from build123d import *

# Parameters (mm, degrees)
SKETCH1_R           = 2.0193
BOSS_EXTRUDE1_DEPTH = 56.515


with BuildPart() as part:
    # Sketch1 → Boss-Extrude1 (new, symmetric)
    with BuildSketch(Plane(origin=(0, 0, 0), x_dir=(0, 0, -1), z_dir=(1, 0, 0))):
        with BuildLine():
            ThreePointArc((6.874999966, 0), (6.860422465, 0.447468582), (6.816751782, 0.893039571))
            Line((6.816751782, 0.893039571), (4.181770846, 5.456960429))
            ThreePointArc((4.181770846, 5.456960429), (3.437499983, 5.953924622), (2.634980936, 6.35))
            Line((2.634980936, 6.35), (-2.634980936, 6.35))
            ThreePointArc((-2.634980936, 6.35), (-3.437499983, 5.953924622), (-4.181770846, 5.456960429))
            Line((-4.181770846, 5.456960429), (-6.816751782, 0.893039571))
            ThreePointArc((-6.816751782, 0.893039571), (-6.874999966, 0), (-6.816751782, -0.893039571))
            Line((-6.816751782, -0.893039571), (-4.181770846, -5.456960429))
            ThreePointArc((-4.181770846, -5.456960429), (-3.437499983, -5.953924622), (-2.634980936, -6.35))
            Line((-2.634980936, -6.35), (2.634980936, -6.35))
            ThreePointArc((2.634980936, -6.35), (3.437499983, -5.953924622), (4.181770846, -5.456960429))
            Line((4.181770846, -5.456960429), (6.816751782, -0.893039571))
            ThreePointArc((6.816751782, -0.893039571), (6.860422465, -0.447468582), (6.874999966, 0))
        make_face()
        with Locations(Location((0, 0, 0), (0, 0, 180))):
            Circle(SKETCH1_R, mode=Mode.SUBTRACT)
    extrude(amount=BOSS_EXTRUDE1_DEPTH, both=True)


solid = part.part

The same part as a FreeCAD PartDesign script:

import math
import FreeCAD as App
import Part
import Sketcher
from FreeCAD import Vector
Q = App.Units.Quantity

doc = App.newDocument("Part")
body = doc.addObject("PartDesign::Body", "Body")

# Sketch on YZ plane
sketch1 = body.newObject("Sketcher::SketchObject", "Sketch")
sketch1.AttachmentSupport = (doc.getObject("YZ_Plane"), [""])
sketch1.MapMode = "FlatFace"
sketch1.addGeometry(Part.ArcOfCircle(Part.Circle(Vector(0, 0, 0), Vector(0, 0, 1), 6.9), math.radians(-90), math.radians(-82.54)), False)
sketch1.addGeometry(Part.LineSegment(Vector(0.9, -6.8, 0), Vector(5.5, -4.2, 0)), False)
sketch1.addGeometry(Part.ArcOfCircle(Part.Circle(Vector(0, 0, 0), Vector(0, 0, 1), 6.9), math.radians(-37.46), math.radians(-22.54)), False)
sketch1.addGeometry(Part.LineSegment(Vector(6.3, -2.6, 0), Vector(6.3, 2.6, 0)), False)
sketch1.addGeometry(Part.ArcOfCircle(Part.Circle(Vector(0, 0, 0), Vector(0, 0, 1), 6.9), math.radians(22.54), math.radians(37.46)), False)
sketch1.addGeometry(Part.LineSegment(Vector(5.5, 4.2, 0), Vector(0.9, 6.8, 0)), False)
sketch1.addGeometry(Part.ArcOfCircle(Part.Circle(Vector(0, 0, 0), Vector(0, 0, 1), 6.9), math.radians(82.54), math.radians(97.46)), False)
sketch1.addGeometry(Part.LineSegment(Vector(-0.9, 6.8, 0), Vector(-5.5, 4.2, 0)), False)
sketch1.addGeometry(Part.ArcOfCircle(Part.Circle(Vector(0, 0, 0), Vector(0, 0, 1), 6.9), math.radians(142.54), math.radians(157.46)), False)
sketch1.addGeometry(Part.LineSegment(Vector(-6.3, 2.6, 0), Vector(-6.3, -2.6, 0)), False)
sketch1.addGeometry(Part.ArcOfCircle(Part.Circle(Vector(0, 0, 0), Vector(0, 0, 1), 6.9), math.radians(-157.46), math.radians(-142.54)), False)
sketch1.addGeometry(Part.LineSegment(Vector(-5.5, -4.2, 0), Vector(-0.9, -6.8, 0)), False)
sketch1.addGeometry(Part.ArcOfCircle(Part.Circle(Vector(0, 0, 0), Vector(0, 0, 1), 6.9), math.radians(-97.46), math.radians(-90)), False)
sketch1.addGeometry(Part.Circle(Vector(0, 0, 0), Vector(0, 0, 1), 2), False)
sketch1.addConstraint(Sketcher.Constraint("Coincident", 0, 2, 1, 1))
sketch1.addConstraint(Sketcher.Constraint("Coincident", 1, 2, 2, 1))
sketch1.addConstraint(Sketcher.Constraint("Coincident", 2, 2, 3, 1))
sketch1.addConstraint(Sketcher.Constraint("Coincident", 3, 2, 4, 1))
sketch1.addConstraint(Sketcher.Constraint("Coincident", 4, 2, 5, 1))
sketch1.addConstraint(Sketcher.Constraint("Coincident", 5, 2, 6, 1))
sketch1.addConstraint(Sketcher.Constraint("Coincident", 6, 2, 7, 1))
sketch1.addConstraint(Sketcher.Constraint("Coincident", 7, 2, 8, 1))
sketch1.addConstraint(Sketcher.Constraint("Coincident", 8, 2, 9, 1))
sketch1.addConstraint(Sketcher.Constraint("Coincident", 9, 2, 10, 1))
sketch1.addConstraint(Sketcher.Constraint("Coincident", 10, 2, 11, 1))
sketch1.addConstraint(Sketcher.Constraint("Coincident", 11, 2, 12, 1))
sketch1.addConstraint(Sketcher.Constraint("Tangent", 12, 2, 0, 1))
sketch1.addConstraint(Sketcher.Constraint("Vertical", 3))
sketch1.addConstraint(Sketcher.Constraint("Vertical", 9))
sketch1.addConstraint(Sketcher.Constraint("Coincident", 0, 3, -1, 1))
sketch1.addConstraint(Sketcher.Constraint("Coincident", 2, 3, -1, 1))
sketch1.addConstraint(Sketcher.Constraint("Coincident", 4, 3, -1, 1))
sketch1.addConstraint(Sketcher.Constraint("Coincident", 6, 3, -1, 1))
sketch1.addConstraint(Sketcher.Constraint("Coincident", 8, 3, -1, 1))
sketch1.addConstraint(Sketcher.Constraint("Coincident", 10, 3, -1, 1))
sketch1.addConstraint(Sketcher.Constraint("Coincident", 13, 3, -1, 1))
sketch1.addConstraint(Sketcher.Constraint("Equal", 0, 2))
sketch1.addConstraint(Sketcher.Constraint("Equal", 2, 4))
sketch1.addConstraint(Sketcher.Constraint("Equal", 4, 6))
sketch1.addConstraint(Sketcher.Constraint("Equal", 6, 8))
sketch1.addConstraint(Sketcher.Constraint("Equal", 8, 10))
sketch1.addConstraint(Sketcher.Constraint("Equal", 10, 12))
sketch1.addConstraint(Sketcher.Constraint("PointOnObject", 12, 2, -2))
sketch1.addConstraint(Sketcher.Constraint("Parallel", 1, 7))
sketch1.addConstraint(Sketcher.Constraint("Parallel", 5, 11))
sketch1.addConstraint(Sketcher.Constraint("Horizontal", 5, 2, 6, 2))
sketch1.addConstraint(Sketcher.Constraint("Horizontal", 4, 2, 7, 2))
sketch1.addConstraint(Sketcher.Constraint("Horizontal", 3, 2, 8, 2))
sketch1.addConstraint(Sketcher.Constraint("Horizontal", 1, 2, 10, 2))
sketch1.addConstraint(Sketcher.Constraint("Vertical", 1, 2, 4, 2))
sketch1.addConstraint(Sketcher.Constraint("Diameter", 13, Q("0.159 in")))
sketch1.addConstraint(Sketcher.Constraint("Angle", 1, Q("30 deg")))
sketch1.addConstraint(Sketcher.Constraint("DistanceX", -1, 1, 2, 2, Q("0.25 in")))
sketch1.addConstraint(Sketcher.Constraint("Radius", 0, 6.875))
sketch1.addConstraint(Sketcher.Constraint("Distance", 1, 5.269962))
pad1 = body.newObject("PartDesign::Pad", "Pad")
pad1.Profile = sketch1
pad1.Length = Q("4.45 in")
pad1.Midplane = True

doc.recompute()
